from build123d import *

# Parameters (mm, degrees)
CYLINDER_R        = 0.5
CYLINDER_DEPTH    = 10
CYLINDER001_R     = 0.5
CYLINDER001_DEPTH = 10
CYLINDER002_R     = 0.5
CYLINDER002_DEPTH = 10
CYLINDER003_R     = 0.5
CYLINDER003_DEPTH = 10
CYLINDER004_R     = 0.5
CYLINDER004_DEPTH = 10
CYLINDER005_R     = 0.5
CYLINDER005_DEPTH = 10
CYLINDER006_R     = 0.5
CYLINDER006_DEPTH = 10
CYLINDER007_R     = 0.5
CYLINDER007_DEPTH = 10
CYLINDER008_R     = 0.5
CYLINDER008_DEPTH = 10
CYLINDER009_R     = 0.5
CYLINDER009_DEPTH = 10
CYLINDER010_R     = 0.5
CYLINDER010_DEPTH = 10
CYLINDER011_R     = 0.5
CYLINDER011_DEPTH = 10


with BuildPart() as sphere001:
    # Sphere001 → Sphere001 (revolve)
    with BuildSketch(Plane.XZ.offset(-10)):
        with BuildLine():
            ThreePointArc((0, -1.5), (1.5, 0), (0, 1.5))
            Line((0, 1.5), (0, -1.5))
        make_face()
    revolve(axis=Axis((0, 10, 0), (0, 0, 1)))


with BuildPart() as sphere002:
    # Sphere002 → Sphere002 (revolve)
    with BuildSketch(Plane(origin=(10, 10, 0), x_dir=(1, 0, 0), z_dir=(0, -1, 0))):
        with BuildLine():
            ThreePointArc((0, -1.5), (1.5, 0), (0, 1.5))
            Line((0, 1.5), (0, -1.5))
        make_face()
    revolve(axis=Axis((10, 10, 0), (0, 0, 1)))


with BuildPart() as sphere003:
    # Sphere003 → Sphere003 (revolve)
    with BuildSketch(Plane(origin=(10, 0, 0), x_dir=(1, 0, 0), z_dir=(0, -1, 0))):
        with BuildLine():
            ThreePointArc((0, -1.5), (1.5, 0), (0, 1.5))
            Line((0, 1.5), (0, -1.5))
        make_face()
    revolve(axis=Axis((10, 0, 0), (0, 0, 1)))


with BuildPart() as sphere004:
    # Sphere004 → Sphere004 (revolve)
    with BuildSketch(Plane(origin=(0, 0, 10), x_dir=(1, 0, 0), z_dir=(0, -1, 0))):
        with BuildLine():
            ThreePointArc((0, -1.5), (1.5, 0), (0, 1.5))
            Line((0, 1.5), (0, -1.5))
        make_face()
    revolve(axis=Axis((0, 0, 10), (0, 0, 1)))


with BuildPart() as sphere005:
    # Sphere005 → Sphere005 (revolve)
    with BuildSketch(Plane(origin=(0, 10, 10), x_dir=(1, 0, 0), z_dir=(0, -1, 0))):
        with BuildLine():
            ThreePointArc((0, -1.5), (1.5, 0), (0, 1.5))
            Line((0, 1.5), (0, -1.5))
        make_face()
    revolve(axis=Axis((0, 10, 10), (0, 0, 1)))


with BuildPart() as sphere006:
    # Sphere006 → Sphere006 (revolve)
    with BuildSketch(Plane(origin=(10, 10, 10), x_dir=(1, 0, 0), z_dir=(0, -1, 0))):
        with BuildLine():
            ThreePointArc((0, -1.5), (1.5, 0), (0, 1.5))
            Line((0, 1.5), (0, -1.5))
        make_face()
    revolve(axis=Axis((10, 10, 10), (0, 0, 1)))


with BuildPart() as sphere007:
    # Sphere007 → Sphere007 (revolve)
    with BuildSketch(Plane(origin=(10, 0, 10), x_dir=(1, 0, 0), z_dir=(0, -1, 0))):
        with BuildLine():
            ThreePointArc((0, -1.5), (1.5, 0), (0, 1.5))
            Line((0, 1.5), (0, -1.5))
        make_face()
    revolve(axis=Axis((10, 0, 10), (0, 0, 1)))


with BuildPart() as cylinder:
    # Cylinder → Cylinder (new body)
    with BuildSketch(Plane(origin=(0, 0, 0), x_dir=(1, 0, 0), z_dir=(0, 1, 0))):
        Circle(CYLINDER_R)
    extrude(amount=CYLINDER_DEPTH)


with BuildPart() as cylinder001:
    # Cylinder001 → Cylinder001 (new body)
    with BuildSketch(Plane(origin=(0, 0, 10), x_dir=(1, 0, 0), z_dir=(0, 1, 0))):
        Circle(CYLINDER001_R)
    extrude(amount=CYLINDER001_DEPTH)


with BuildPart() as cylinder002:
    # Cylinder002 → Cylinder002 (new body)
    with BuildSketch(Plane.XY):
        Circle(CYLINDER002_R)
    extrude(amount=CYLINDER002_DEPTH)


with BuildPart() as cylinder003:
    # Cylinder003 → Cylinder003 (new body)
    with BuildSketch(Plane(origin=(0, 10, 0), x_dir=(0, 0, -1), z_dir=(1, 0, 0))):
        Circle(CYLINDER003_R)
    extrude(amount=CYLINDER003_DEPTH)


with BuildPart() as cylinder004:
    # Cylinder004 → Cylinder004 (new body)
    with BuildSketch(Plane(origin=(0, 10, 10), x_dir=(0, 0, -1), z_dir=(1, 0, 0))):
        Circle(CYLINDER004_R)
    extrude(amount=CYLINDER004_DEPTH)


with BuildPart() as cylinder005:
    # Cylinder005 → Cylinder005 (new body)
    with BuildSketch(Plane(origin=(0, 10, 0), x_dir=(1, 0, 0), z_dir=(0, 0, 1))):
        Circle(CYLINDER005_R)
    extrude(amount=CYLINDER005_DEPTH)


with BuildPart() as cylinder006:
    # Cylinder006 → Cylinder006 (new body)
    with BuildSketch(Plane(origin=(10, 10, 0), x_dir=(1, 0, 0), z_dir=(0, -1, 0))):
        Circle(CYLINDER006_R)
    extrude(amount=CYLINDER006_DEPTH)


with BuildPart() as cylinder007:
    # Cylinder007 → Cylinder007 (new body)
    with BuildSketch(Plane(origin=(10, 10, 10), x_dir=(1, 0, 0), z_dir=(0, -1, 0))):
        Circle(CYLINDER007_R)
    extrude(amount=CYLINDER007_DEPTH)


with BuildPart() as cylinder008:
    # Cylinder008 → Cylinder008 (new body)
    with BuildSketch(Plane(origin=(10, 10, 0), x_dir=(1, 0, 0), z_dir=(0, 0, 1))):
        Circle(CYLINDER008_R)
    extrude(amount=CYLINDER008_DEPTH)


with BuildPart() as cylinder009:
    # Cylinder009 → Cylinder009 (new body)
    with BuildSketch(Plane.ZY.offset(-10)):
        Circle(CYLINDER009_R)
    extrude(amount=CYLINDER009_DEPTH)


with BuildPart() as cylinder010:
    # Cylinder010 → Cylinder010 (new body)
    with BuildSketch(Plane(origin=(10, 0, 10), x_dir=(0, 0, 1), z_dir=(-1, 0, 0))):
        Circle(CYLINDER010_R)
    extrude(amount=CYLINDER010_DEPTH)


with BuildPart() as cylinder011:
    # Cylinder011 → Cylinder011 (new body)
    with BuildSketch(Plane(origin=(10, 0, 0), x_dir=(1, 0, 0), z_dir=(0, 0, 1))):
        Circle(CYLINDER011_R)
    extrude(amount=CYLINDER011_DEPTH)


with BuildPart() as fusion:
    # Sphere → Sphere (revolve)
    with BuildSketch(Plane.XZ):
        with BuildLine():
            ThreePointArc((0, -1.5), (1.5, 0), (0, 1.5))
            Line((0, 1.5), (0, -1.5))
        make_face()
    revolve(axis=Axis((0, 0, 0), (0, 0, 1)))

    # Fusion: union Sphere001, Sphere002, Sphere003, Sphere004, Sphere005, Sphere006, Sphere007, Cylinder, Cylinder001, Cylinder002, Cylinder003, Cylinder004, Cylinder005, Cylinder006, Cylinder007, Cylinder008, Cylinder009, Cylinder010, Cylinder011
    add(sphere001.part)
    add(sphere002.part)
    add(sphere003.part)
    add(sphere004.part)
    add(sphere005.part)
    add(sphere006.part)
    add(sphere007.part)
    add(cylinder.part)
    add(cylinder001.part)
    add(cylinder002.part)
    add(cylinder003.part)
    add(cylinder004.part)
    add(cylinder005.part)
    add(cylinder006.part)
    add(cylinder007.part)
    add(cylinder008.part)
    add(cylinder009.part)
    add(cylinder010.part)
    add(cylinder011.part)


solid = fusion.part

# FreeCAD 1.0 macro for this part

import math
import FreeCAD as App
import Part
import Sketcher

V = App.Vector
Q = App.Units.Quantity

doc = App.newDocument("Part")
params = doc.addObject("Spreadsheet::Sheet", "Params")
for row, (alias, value) in enumerate([
    ("sketch1_radius", "1.5 mm"),
    ("revolution_angle", "360 deg"),
    ("sketch2_radius", "1.5 mm"),
    ("revolution2_angle", "360 deg"),
    ("sketch3_radius", "1.5 mm"),
    ("revolution3_angle", "360 deg"),
    ("sketch4_radius", "1.5 mm"),
    ("revolution4_angle", "360 deg"),
    ("sketch5_radius", "1.5 mm"),
    ("revolution5_angle", "360 deg"),
    ("sketch6_radius", "1.5 mm"),
    ("revolution6_angle", "360 deg"),
    ("sketch7_radius", "1.5 mm"),
    ("revolution7_angle", "360 deg"),
    ("sketch8_diameter", "1 mm"),
    ("pad1_length", "10 mm"),
    ("sketch9_diameter", "1 mm"),
    ("pad2_length", "10 mm"),
    ("sketch10_diameter", "1 mm"),
    ("pad3_length", "10 mm"),
    ("sketch11_diameter", "1 mm"),
    ("pad4_length", "10 mm"),
    ("sketch12_diameter", "1 mm"),
    ("pad5_length", "10 mm"),
    ("sketch13_diameter", "1 mm"),
    ("pad6_length", "10 mm"),
    ("sketch14_diameter", "1 mm"),
    ("pad7_length", "10 mm"),
    ("sketch15_diameter", "1 mm"),
    ("pad8_length", "10 mm"),
    ("sketch16_diameter", "1 mm"),
    ("pad9_length", "10 mm"),
    ("sketch17_diameter", "1 mm"),
    ("pad10_length", "10 mm"),
    ("sketch18_diameter", "1 mm"),
    ("pad11_length", "10 mm"),
    ("sketch19_diameter", "1 mm"),
    ("pad12_length", "10 mm"),
    ("sketch20_radius", "1.5 mm"),
    ("revolution8_angle", "360 deg"),
], start=1):
    params.set(f"A{row}", alias)
    params.set(f"B{row}", "=" + value)
    params.setAlias(f"B{row}", alias)

body = doc.addObject("PartDesign::Body", "Body")

sketch1 = doc.addObject("Sketcher::SketchObject", "Sketch")
body.addObject(sketch1)
sketch1.AttachmentSupport = (doc.XZ_Plane, [""])
sketch1.MapMode = "FlatFace"
sketch1.AttachmentOffset = App.Placement(V(0, 0, -10), App.Rotation())
sketch1.addGeometry([
    Part.ArcOfCircle(Part.Circle(V(0, 0, 0), V(0, 0, 1), 1.5), math.radians(-90), math.radians(90)),
    Part.LineSegment(V(0, 1.5, 0), V(0, -1.5, 0)),
], False)
sketch1.addConstraint([
    Sketcher.Constraint("Coincident", 0, 1, 1, 2),
    Sketcher.Constraint("Coincident", 1, 1, 0, 2),
    Sketcher.Constraint("Vertical", 1),
    Sketcher.Constraint("Coincident", 0, 3, -1, 1),
    Sketcher.Constraint("PointOnObject", 0, 1, -2),
    Sketcher.Constraint("Radius", 0, Q("1.5 mm")),
])
sketch1.setExpression("Constraints[5]", "Params.sketch1_radius")
revolution = doc.addObject("PartDesign::Revolution", "Revolution")
body.addObject(revolution)
revolution.Profile = sketch1
revolution.ReferenceAxis = (sketch1, ["V_Axis"])
revolution.setExpression("Angle", "Params.revolution_angle")
body2 = doc.addObject("PartDesign::Body", "Body001")

sketch2 = doc.addObject("Sketcher::SketchObject", "Sketch001")
body2.addObject(sketch2)
sketch2.AttachmentSupport = (doc.getObject("XZ_Plane001"), [""])
sketch2.MapMode = "FlatFace"
sketch2.AttachmentOffset = App.Placement(V(0, 0, -10), App.Rotation())
sketch2.addGeometry([
    Part.ArcOfCircle(Part.Circle(V(10, 0, 0), V(0, 0, 1), 1.5), math.radians(-90), math.radians(90)),
    Part.LineSegment(V(10, 1.5, 0), V(10, -1.5, 0)),
], False)
sketch2.addGeometry(Part.LineSegment(V(10, -1.5, 0), V(10, 1.5, 0)), True)
sketch2.addConstraint([
    Sketcher.Constraint("Coincident", 0, 1, 1, 2),
    Sketcher.Constraint("Coincident", 1, 1, 0, 2),
    Sketcher.Constraint("Vertical", 1),
    Sketcher.Constraint("Vertical", 2),
    Sketcher.Constraint("Coincident", 2, 1, 0, 1),
    Sketcher.Constraint("PointOnObject", 0, 3, -1),
    Sketcher.Constraint("Equal", 1, 2),
    Sketcher.Constraint("Radius", 0, Q("1.5 mm")),
    Sketcher.Constraint("DistanceX", -1, 1, 0, 3, Q("10 mm")),
    Sketcher.Constraint("DistanceX", -1, 1, 0, 1, Q("10 mm")),
])
sketch2.setExpression("Constraints[7]", "Params.sketch2_radius")
revolution2 = doc.addObject("PartDesign::Revolution", "Revolution001")
body2.addObject(revolution2)
revolution2.Profile = sketch2
revolution2.ReferenceAxis = (sketch2, ["Axis0"])
revolution2.setExpression("Angle", "Params.revolution2_angle")
body3 = doc.addObject("PartDesign::Body", "Body002")

sketch3 = doc.addObject("Sketcher::SketchObject", "Sketch002")
body3.addObject(sketch3)
sketch3.AttachmentSupport = (doc.getObject("XZ_Plane002"), [""])
sketch3.MapMode = "FlatFace"
sketch3.addGeometry([
    Part.ArcOfCircle(Part.Circle(V(10, 0, 0), V(0, 0, 1), 1.5), math.radians(-90), math.radians(90)),
    Part.LineSegment(V(10, 1.5, 0), V(10, -1.5, 0)),
], False)
sketch3.addGeometry(Part.LineSegment(V(10, -1.5, 0), V(10, 1.5, 0)), True)
sketch3.addConstraint([
    Sketcher.Constraint("Coincident", 0, 1, 1, 2),
    Sketcher.Constraint("Coincident", 1, 1, 0, 2),
    Sketcher.Constraint("Vertical", 1),
    Sketcher.Constraint("Vertical", 2),
    Sketcher.Constraint("Coincident", 2, 1, 0, 1),
    Sketcher.Constraint("PointOnObject", 0, 3, -1),
    Sketcher.Constraint("Equal", 1, 2),
    Sketcher.Constraint("Radius", 0, Q("1.5 mm")),
    Sketcher.Constraint("DistanceX", -1, 1, 0, 3, Q("10 mm")),
    Sketcher.Constraint("DistanceX", -1, 1, 0, 1, Q("10 mm")),
])
sketch3.setExpression("Constraints[7]", "Params.sketch3_radius")
revolution3 = doc.addObject("PartDesign::Revolution", "Revolution002")
body3.addObject(revolution3)
revolution3.Profile = sketch3
revolution3.ReferenceAxis = (sketch3, ["Axis0"])
revolution3.setExpression("Angle", "Params.revolution3_angle")
body4 = doc.addObject("PartDesign::Body", "Body003")

sketch4 = doc.addObject("Sketcher::SketchObject", "Sketch003")
body4.addObject(sketch4)
sketch4.AttachmentSupport = (doc.getObject("XZ_Plane003"), [""])
sketch4.MapMode = "FlatFace"
sketch4.addGeometry([
    Part.ArcOfCircle(Part.Circle(V(0, 10, 0), V(0, 0, 1), 1.5), math.radians(-90), math.radians(90)),
    Part.LineSegment(V(0, 11.5, 0), V(0, 8.5, 0)),
], False)
sketch4.addConstraint([
    Sketcher.Constraint("Coincident", 0, 1, 1, 2),
    Sketcher.Constraint("Coincident", 1, 1, 0, 2),
    Sketcher.Constraint("Vertical", 1),
    Sketcher.Constraint("PointOnObject", 0, 3, -2),
    Sketcher.Constraint("PointOnObject", 0, 1, -2),
    Sketcher.Constraint("Radius", 0, Q("1.5 mm")),
    Sketcher.Constraint("DistanceY", -1, 1, 0, 3, Q("10 mm")),
])
sketch4.setExpression("Constraints[5]", "Params.sketch4_radius")
revolution4 = doc.addObject("PartDesign::Revolution", "Revolution003")
body4.addObject(revolution4)
revolution4.Profile = sketch4
revolution4.ReferenceAxis = (sketch4, ["V_Axis"])
revolution4.setExpression("Angle", "Params.revolution4_angle")
body5 = doc.addObject("PartDesign::Body", "Body004")

sketch5 = doc.addObject("Sketcher::SketchObject", "Sketch004")
body5.addObject(sketch5)
sketch5.AttachmentSupport = (doc.getObject("XZ_Plane004"), [""])
sketch5.MapMode = "FlatFace"
sketch5.AttachmentOffset = App.Placement(V(0, 0, -10), App.Rotation())
sketch5.addGeometry([
    Part.ArcOfCircle(Part.Circle(V(0, 10, 0), V(0, 0, 1), 1.5), math.radians(-90), math.radians(90)),
    Part.LineSegment(V(0, 11.5, 0), V(0, 8.5, 0)),
], False)
sketch5.addConstraint([
    Sketcher.Constraint("Coincident", 0, 1, 1, 2),
    Sketcher.Constraint("Coincident", 1, 1, 0, 2),
    Sketcher.Constraint("Vertical", 1),
    Sketcher.Constraint("PointOnObject", 0, 3, -2),
    Sketcher.Constraint("PointOnObject", 0, 1, -2),
    Sketcher.Constraint("Radius", 0, Q("1.5 mm")),
    Sketcher.Constraint("DistanceY", -1, 1, 0, 3, Q("10 mm")),
])
sketch5.setExpression("Constraints[5]", "Params.sketch5_radius")
revolution5 = doc.addObject("PartDesign::Revolution", "Revolution004")
body5.addObject(revolution5)
revolution5.Profile = sketch5
revolution5.ReferenceAxis = (sketch5, ["V_Axis"])
revolution5.setExpression("Angle", "Params.revolution5_angle")
body6 = doc.addObject("PartDesign::Body", "Body005")

sketch6 = doc.addObject("Sketcher::SketchObject", "Sketch005")
body6.addObject(sketch6)
sketch6.AttachmentSupport = (doc.getObject("XZ_Plane005"), [""])
sketch6.MapMode = "FlatFace"
sketch6.AttachmentOffset = App.Placement(V(0, 0, -10), App.Rotation())
sketch6.addGeometry([
    Part.ArcOfCircle(Part.Circle(V(10, 10, 0), V(0, 0, 1), 1.5), math.radians(-90), math.radians(90)),
    Part.LineSegment(V(10, 11.5, 0), V(10, 8.5, 0)),
], False)
sketch6.addGeometry(Part.LineSegment(V(10, 8.5, 0), V(10, 11.5, 0)), True)
sketch6.addConstraint([
    Sketcher.Constraint("Coincident", 0, 1, 1, 2),
    Sketcher.Constraint("Coincident", 1, 1, 0, 2),
    Sketcher.Constraint("Vertical", 1),
    Sketcher.Constraint("Vertical", 2),
    Sketcher.Constraint("Coincident", 2, 1, 0, 1),
    Sketcher.Constraint("Equal", 1, 2),
    Sketcher.Constraint("Radius", 0, Q("1.5 mm")),
    Sketcher.Constraint("DistanceX", -1, 1, 0, 3, Q("10 mm")),
    Sketcher.Constraint("DistanceY", -1, 1, 0, 3, Q("10 mm")),
    Sketcher.Constraint("DistanceX", -1, 1, 0, 1, Q("10 mm")),
])
sketch6.setExpression("Constraints[6]", "Params.sketch6_radius")
revolution6 = doc.addObject("PartDesign::Revolution", "Revolution005")
body6.addObject(revolution6)
revolution6.Profile = sketch6
revolution6.ReferenceAxis = (sketch6, ["Axis0"])
revolution6.setExpression("Angle", "Params.revolution6_angle")
body7 = doc.addObject("PartDesign::Body", "Body006")

sketch7 = doc.addObject("Sketcher::SketchObject", "Sketch006")
body7.addObject(sketch7)
sketch7.AttachmentSupport = (doc.getObject("XZ_Plane006"), [""])
sketch7.MapMode = "FlatFace"
sketch7.addGeometry([
    Part.ArcOfCircle(Part.Circle(V(10, 10, 0), V(0, 0, 1), 1.5), math.radians(-90), math.radians(90)),
    Part.LineSegment(V(10, 11.5, 0), V(10, 8.5, 0)),
], False)
sketch7.addGeometry(Part.LineSegment(V(10, 8.5, 0), V(10, 11.5, 0)), True)
sketch7.addConstraint([
    Sketcher.Constraint("Coincident", 0, 1, 1, 2),
    Sketcher.Constraint("Coincident", 1, 1, 0, 2),
    Sketcher.Constraint("Vertical", 1),
    Sketcher.Constraint("Vertical", 2),
    Sketcher.Constraint("Coincident", 2, 1, 0, 1),
    Sketcher.Constraint("Equal", 1, 2),
    Sketcher.Constraint("Radius", 0, Q("1.5 mm")),
    Sketcher.Constraint("DistanceX", -1, 1, 0, 3, Q("10 mm")),
    Sketcher.Constraint("DistanceY", -1, 1, 0, 3, Q("10 mm")),
    Sketcher.Constraint("DistanceX", -1, 1, 0, 1, Q("10 mm")),
])
sketch7.setExpression("Constraints[6]", "Params.sketch7_radius")
revolution7 = doc.addObject("PartDesign::Revolution", "Revolution006")
body7.addObject(revolution7)
revolution7.Profile = sketch7
revolution7.ReferenceAxis = (sketch7, ["Axis0"])
revolution7.setExpression("Angle", "Params.revolution7_angle")
body8 = doc.addObject("PartDesign::Body", "Body007")

sketch8 = doc.addObject("Sketcher::SketchObject", "Sketch007")
body8.addObject(sketch8)
sketch8.AttachmentSupport = (doc.getObject("XZ_Plane007"), [""])
sketch8.MapMode = "FlatFace"
sketch8.addGeometry(Part.Circle(V(0, 0, 0), V(0, 0, 1), 0.5), False)
sketch8.addConstraint([
    Sketcher.Constraint("Coincident", 0, 3, -1, 1),
    Sketcher.Constraint("Diameter", 0, Q("1 mm")),
])
sketch8.setExpression("Constraints[1]", "Params.sketch8_diameter")
pad1 = doc.addObject("PartDesign::Pad", "Pad")
body8.addObject(pad1)
pad1.Profile = sketch8
pad1.setExpression("Length", "Params.pad1_length")
pad1.Reversed = True
body9 = doc.addObject("PartDesign::Body", "Body008")

sketch9 = doc.addObject("Sketcher::SketchObject", "Sketch008")
body9.addObject(sketch9)
sketch9.AttachmentSupport = (doc.getObject("XZ_Plane008"), [""])
sketch9.MapMode = "FlatFace"
sketch9.addGeometry(Part.Circle(V(0, 10, 0), V(0, 0, 1), 0.5), False)
sketch9.addConstraint([
    Sketcher.Constraint("PointOnObject", 0, 3, -2),
    Sketcher.Constraint("Diameter", 0, Q("1 mm")),
    Sketcher.Constraint("DistanceY", -1, 1, 0, 3, Q("10 mm")),
])
sketch9.setExpression("Constraints[1]", "Params.sketch9_diameter")
pad2 = doc.addObject("PartDesign::Pad", "Pad001")
body9.addObject(pad2)
pad2.Profile = sketch9
pad2.setExpression("Length", "Params.pad2_length")
pad2.Reversed = True
body10 = doc.addObject("PartDesign::Body", "Body009")

sketch10 = doc.addObject("Sketcher::SketchObject", "Sketch009")
body10.addObject(sketch10)
sketch10.AttachmentSupport = (doc.getObject("XY_Plane009"), [""])
sketch10.MapMode = "FlatFace"
sketch10.addGeometry(Part.Circle(V(0, 0, 0), V(0, 0, 1), 0.5), False)
sketch10.addConstraint([
    Sketcher.Constraint("Coincident", 0, 3, -1, 1),
    Sketcher.Constraint("Diameter", 0, Q("1 mm")),
])
sketch10.setExpression("Constraints[1]", "Params.sketch10_diameter")
pad3 = doc.addObject("PartDesign::Pad", "Pad002")
body10.addObject(pad3)
pad3.Profile = sketch10
pad3.setExpression("Length", "Params.pad3_length")
body11 = doc.addObject("PartDesign::Body", "Body010")

sketch11 = doc.addObject("Sketcher::SketchObject", "Sketch010")
body11.addObject(sketch11)
sketch11.AttachmentSupport = (doc.getObject("YZ_Plane010"), [""])
sketch11.MapMode = "FlatFace"
sketch11.addGeometry(Part.Circle(V(10, 0, 0), V(0, 0, 1), 0.5), False)
sketch11.addConstraint([
    Sketcher.Constraint("PointOnObject", 0, 3, -1),
    Sketcher.Constraint("Diameter", 0, Q("1 mm")),
    Sketcher.Constraint("DistanceX", -1, 1, 0, 3, Q("10 mm")),
])
sketch11.setExpression("Constraints[1]", "Params.sketch11_diameter")
pad4 = doc.addObject("PartDesign::Pad", "Pad003")
body11.addObject(pad4)
pad4.Profile = sketch11
pad4.setExpression("Length", "Params.pad4_length")
body12 = doc.addObject("PartDesign::Body", "Body011")

sketch12 = doc.addObject("Sketcher::SketchObject", "Sketch011")
body12.addObject(sketch12)
sketch12.AttachmentSupport = (doc.getObject("YZ_Plane011"), [""])
sketch12.MapMode = "FlatFace"
sketch12.addGeometry(Part.Circle(V(10, 10, 0), V(0, 0, 1), 0.5), False)
sketch12.addConstraint([
    Sketcher.Constraint("Diameter", 0, Q("1 mm")),
    Sketcher.Constraint("DistanceX", -1, 1, 0, 3, Q("10 mm")),
    Sketcher.Constraint("DistanceY", -1, 1, 0, 3, Q("10 mm")),
])
sketch12.setExpression("Constraints[0]", "Params.sketch12_diameter")
pad5 = doc.addObject("PartDesign::Pad", "Pad004")
body12.addObject(pad5)
pad5.Profile = sketch12
pad5.setExpression("Length", "Params.pad5_length")
body13 = doc.addObject("PartDesign::Body", "Body012")

sketch13 = doc.addObject("Sketcher::SketchObject", "Sketch012")
body13.addObject(sketch13)
sketch13.AttachmentSupport = (doc.getObject("XY_Plane012"), [""])
sketch13.MapMode = "FlatFace"
sketch13.addGeometry(Part.Circle(V(0, 10, 0), V(0, 0, 1), 0.5), False)
sketch13.addConstraint([
    Sketcher.Constraint("PointOnObject", 0, 3, -2),
    Sketcher.Constraint("Diameter", 0, Q("1 mm")),
    Sketcher.Constraint("DistanceY", -1, 1, 0, 3, Q("10 mm")),
])
sketch13.setExpression("Constraints[1]", "Params.sketch13_diameter")
pad6 = doc.addObject("PartDesign::Pad", "Pad005")
body13.addObject(pad6)
pad6.Profile = sketch13
pad6.setExpression("Length", "Params.pad6_length")
body14 = doc.addObject("PartDesign::Body", "Body013")

sketch14 = doc.addObject("Sketcher::SketchObject", "Sketch013")
body14.addObject(sketch14)
sketch14.AttachmentSupport = (doc.getObject("XZ_Plane013"), [""])
sketch14.MapMode = "FlatFace"
sketch14.AttachmentOffset = App.Placement(V(0, 0, -10), App.Rotation())
sketch14.addGeometry(Part.Circle(V(10, 0, 0), V(0, 0, 1), 0.5), False)
sketch14.addConstraint([
    Sketcher.Constraint("PointOnObject", 0, 3, -1),
    Sketcher.Constraint("Diameter", 0, Q("1 mm")),
    Sketcher.Constraint("DistanceX", -1, 1, 0, 3, Q("10 mm")),
])
sketch14.setExpression("Constraints[1]", "Params.sketch14_diameter")
pad7 = doc.addObject("PartDesign::Pad", "Pad006")
body14.addObject(pad7)
pad7.Profile = sketch14
pad7.setExpression("Length", "Params.pad7_length")
body15 = doc.addObject("PartDesign::Body", "Body014")

sketch15 = doc.addObject("Sketcher::SketchObject", "Sketch014")
body15.addObject(sketch15)
sketch15.AttachmentSupport = (doc.getObject("XZ_Plane014"), [""])
sketch15.MapMode = "FlatFace"
sketch15.AttachmentOffset = App.Placement(V(0, 0, -10), App.Rotation())
sketch15.addGeometry(Part.Circle(V(10, 10, 0), V(0, 0, 1), 0.5), False)
sketch15.addConstraint([
    Sketcher.Constraint("Diameter", 0, Q("1 mm")),
    Sketcher.Constraint("DistanceX", -1, 1, 0, 3, Q("10 mm")),
    Sketcher.Constraint("DistanceY", -1, 1, 0, 3, Q("10 mm")),
])
sketch15.setExpression("Constraints[0]", "Params.sketch15_diameter")
pad8 = doc.addObject("PartDesign::Pad", "Pad007")
body15.addObject(pad8)
pad8.Profile = sketch15
pad8.setExpression("Length", "Params.pad8_length")
body16 = doc.addObject("PartDesign::Body", "Body015")

sketch16 = doc.addObject("Sketcher::SketchObject", "Sketch015")
body16.addObject(sketch16)
sketch16.AttachmentSupport = (doc.getObject("XY_Plane015"), [""])
sketch16.MapMode = "FlatFace"
sketch16.addGeometry(Part.Circle(V(10, 10, 0), V(0, 0, 1), 0.5), False)
sketch16.addConstraint([
    Sketcher.Constraint("Diameter", 0, Q("1 mm")),
    Sketcher.Constraint("DistanceX", -1, 1, 0, 3, Q("10 mm")),
    Sketcher.Constraint("DistanceY", -1, 1, 0, 3, Q("10 mm")),
])
sketch16.setExpression("Constraints[0]", "Params.sketch16_diameter")
pad9 = doc.addObject("PartDesign::Pad", "Pad008")
body16.addObject(pad9)
pad9.Profile = sketch16
pad9.setExpression("Length", "Params.pad9_length")
body17 = doc.addObject("PartDesign::Body", "Body016")

sketch17 = doc.addObject("Sketcher::SketchObject", "Sketch016")
body17.addObject(sketch17)
sketch17.AttachmentSupport = (doc.getObject("YZ_Plane016"), [""])
sketch17.MapMode = "FlatFace"
sketch17.AttachmentOffset = App.Placement(V(0, 0, 10), App.Rotation())
sketch17.addGeometry(Part.Circle(V(0, 0, 0), V(0, 0, 1), 0.5), False)
sketch17.addConstraint([
    Sketcher.Constraint("Coincident", 0, 3, -1, 1),
    Sketcher.Constraint("Diameter", 0, Q("1 mm")),
])
sketch17.setExpression("Constraints[1]", "Params.sketch17_diameter")
pad10 = doc.addObject("PartDesign::Pad", "Pad009")
body17.addObject(pad10)
pad10.Profile = sketch17
pad10.setExpression("Length", "Params.pad10_length")
pad10.Reversed = True
body18 = doc.addObject("PartDesign::Body", "Body017")

sketch18 = doc.addObject("Sketcher::SketchObject", "Sketch017")
body18.addObject(sketch18)
sketch18.AttachmentSupport = (doc.getObject("YZ_Plane017"), [""])
sketch18.MapMode = "FlatFace"
sketch18.AttachmentOffset = App.Placement(V(0, 0, 10), App.Rotation())
sketch18.addGeometry(Part.Circle(V(0, 10, 0), V(0, 0, 1), 0.5), False)
sketch18.addConstraint([
    Sketcher.Constraint("PointOnObject", 0, 3, -2),
    Sketcher.Constraint("Diameter", 0, Q("1 mm")),
    Sketcher.Constraint("DistanceY", -1, 1, 0, 3, Q("10 mm")),
])
sketch18.setExpression("Constraints[1]", "Params.sketch18_diameter")
pad11 = doc.addObject("PartDesign::Pad", "Pad010")
body18.addObject(pad11)
pad11.Profile = sketch18
pad11.setExpression("Length", "Params.pad11_length")
pad11.Reversed = True
body19 = doc.addObject("PartDesign::Body", "Body018")

sketch19 = doc.addObject("Sketcher::SketchObject", "Sketch018")
body19.addObject(sketch19)
sketch19.AttachmentSupport = (doc.getObject("XY_Plane018"), [""])
sketch19.MapMode = "FlatFace"
sketch19.addGeometry(Part.Circle(V(10, 0, 0), V(0, 0, 1), 0.5), False)
sketch19.addConstraint([
    Sketcher.Constraint("PointOnObject", 0, 3, -1),
    Sketcher.Constraint("Diameter", 0, Q("1 mm")),
    Sketcher.Constraint("DistanceX", -1, 1, 0, 3, Q("10 mm")),
])
sketch19.setExpression("Constraints[1]", "Params.sketch19_diameter")
pad12 = doc.addObject("PartDesign::Pad", "Pad011")
body19.addObject(pad12)
pad12.Profile = sketch19
pad12.setExpression("Length", "Params.pad12_length")
body20 = doc.addObject("PartDesign::Body", "Body019")
body20.AllowCompound = True

sketch20 = doc.addObject("Sketcher::SketchObject", "Sketch019")
body20.addObject(sketch20)
sketch20.AttachmentSupport = (doc.getObject("XZ_Plane019"), [""])
sketch20.MapMode = "FlatFace"
sketch20.addGeometry([
    Part.ArcOfCircle(Part.Circle(V(0, 0, 0), V(0, 0, 1), 1.5), math.radians(-90), math.radians(90)),
    Part.LineSegment(V(0, 1.5, 0), V(0, -1.5, 0)),
], False)
sketch20.addConstraint([
    Sketcher.Constraint("Coincident", 0, 1, 1, 2),
    Sketcher.Constraint("Coincident", 1, 1, 0, 2),
    Sketcher.Constraint("Vertical", 1),
    Sketcher.Constraint("Coincident", 0, 3, -1, 1),
    Sketcher.Constraint("PointOnObject", 0, 1, -2),
    Sketcher.Constraint("Radius", 0, Q("1.5 mm")),
])
sketch20.setExpression("Constraints[5]", "Params.sketch20_radius")
revolution8 = doc.addObject("PartDesign::Revolution", "Revolution007")
body20.addObject(revolution8)
revolution8.Profile = sketch20
revolution8.ReferenceAxis = (sketch20, ["V_Axis"])
revolution8.setExpression("Angle", "Params.revolution8_angle")
doc.recompute()

boolean = doc.addObject("PartDesign::Boolean", "Boolean")
body20.addObject(boolean)
boolean.Type = "Fuse"
boolean.addObjects([body])
doc.recompute()

boolean2 = doc.addObject("PartDesign::Boolean", "Boolean001")
body20.addObject(boolean2)
boolean2.Type = "Fuse"
boolean2.addObjects([body2])
doc.recompute()

boolean3 = doc.addObject("PartDesign::Boolean", "Boolean002")
body20.addObject(boolean3)
boolean3.Type = "Fuse"
boolean3.addObjects([body3])
doc.recompute()

boolean4 = doc.addObject("PartDesign::Boolean", "Boolean003")
body20.addObject(boolean4)
boolean4.Type = "Fuse"
boolean4.addObjects([body4])
doc.recompute()

boolean5 = doc.addObject("PartDesign::Boolean", "Boolean004")
body20.addObject(boolean5)
boolean5.Type = "Fuse"
boolean5.addObjects([body5])
doc.recompute()

boolean6 = doc.addObject("PartDesign::Boolean", "Boolean005")
body20.addObject(boolean6)
boolean6.Type = "Fuse"
boolean6.addObjects([body6])
doc.recompute()

boolean7 = doc.addObject("PartDesign::Boolean", "Boolean006")
body20.addObject(boolean7)
boolean7.Type = "Fuse"
boolean7.addObjects([body7])
doc.recompute()

boolean8 = doc.addObject("PartDesign::Boolean", "Boolean007")
body20.addObject(boolean8)
boolean8.Type = "Fuse"
boolean8.addObjects([body8])
doc.recompute()

boolean9 = doc.addObject("PartDesign::Boolean", "Boolean008")
body20.addObject(boolean9)
boolean9.Type = "Fuse"
boolean9.addObjects([body9])
doc.recompute()

boolean10 = doc.addObject("PartDesign::Boolean", "Boolean009")
body20.addObject(boolean10)
boolean10.Type = "Fuse"
boolean10.addObjects([body10])
doc.recompute()

boolean11 = doc.addObject("PartDesign::Boolean", "Boolean010")
body20.addObject(boolean11)
boolean11.Type = "Fuse"
boolean11.addObjects([body11])
doc.recompute()

boolean12 = doc.addObject("PartDesign::Boolean", "Boolean011")
body20.addObject(boolean12)
boolean12.Type = "Fuse"
boolean12.addObjects([body12])
doc.recompute()

boolean13 = doc.addObject("PartDesign::Boolean", "Boolean012")
body20.addObject(boolean13)
boolean13.Type = "Fuse"
boolean13.addObjects([body13])
doc.recompute()

boolean14 = doc.addObject("PartDesign::Boolean", "Boolean013")
body20.addObject(boolean14)
boolean14.Type = "Fuse"
boolean14.addObjects([body14])
doc.recompute()

boolean15 = doc.addObject("PartDesign::Boolean", "Boolean014")
body20.addObject(boolean15)
boolean15.Type = "Fuse"
boolean15.addObjects([body15])
doc.recompute()

boolean16 = doc.addObject("PartDesign::Boolean", "Boolean015")
body20.addObject(boolean16)
boolean16.Type = "Fuse"
boolean16.addObjects([body16])
doc.recompute()

boolean17 = doc.addObject("PartDesign::Boolean", "Boolean016")
body20.addObject(boolean17)
boolean17.Type = "Fuse"
boolean17.addObjects([body17])
doc.recompute()

boolean18 = doc.addObject("PartDesign::Boolean", "Boolean017")
body20.addObject(boolean18)
boolean18.Type = "Fuse"
boolean18.addObjects([body18])
doc.recompute()

boolean19 = doc.addObject("PartDesign::Boolean", "Boolean018")
body20.addObject(boolean19)
boolean19.Type = "Fuse"
boolean19.addObjects([body19])

doc.recompute()
